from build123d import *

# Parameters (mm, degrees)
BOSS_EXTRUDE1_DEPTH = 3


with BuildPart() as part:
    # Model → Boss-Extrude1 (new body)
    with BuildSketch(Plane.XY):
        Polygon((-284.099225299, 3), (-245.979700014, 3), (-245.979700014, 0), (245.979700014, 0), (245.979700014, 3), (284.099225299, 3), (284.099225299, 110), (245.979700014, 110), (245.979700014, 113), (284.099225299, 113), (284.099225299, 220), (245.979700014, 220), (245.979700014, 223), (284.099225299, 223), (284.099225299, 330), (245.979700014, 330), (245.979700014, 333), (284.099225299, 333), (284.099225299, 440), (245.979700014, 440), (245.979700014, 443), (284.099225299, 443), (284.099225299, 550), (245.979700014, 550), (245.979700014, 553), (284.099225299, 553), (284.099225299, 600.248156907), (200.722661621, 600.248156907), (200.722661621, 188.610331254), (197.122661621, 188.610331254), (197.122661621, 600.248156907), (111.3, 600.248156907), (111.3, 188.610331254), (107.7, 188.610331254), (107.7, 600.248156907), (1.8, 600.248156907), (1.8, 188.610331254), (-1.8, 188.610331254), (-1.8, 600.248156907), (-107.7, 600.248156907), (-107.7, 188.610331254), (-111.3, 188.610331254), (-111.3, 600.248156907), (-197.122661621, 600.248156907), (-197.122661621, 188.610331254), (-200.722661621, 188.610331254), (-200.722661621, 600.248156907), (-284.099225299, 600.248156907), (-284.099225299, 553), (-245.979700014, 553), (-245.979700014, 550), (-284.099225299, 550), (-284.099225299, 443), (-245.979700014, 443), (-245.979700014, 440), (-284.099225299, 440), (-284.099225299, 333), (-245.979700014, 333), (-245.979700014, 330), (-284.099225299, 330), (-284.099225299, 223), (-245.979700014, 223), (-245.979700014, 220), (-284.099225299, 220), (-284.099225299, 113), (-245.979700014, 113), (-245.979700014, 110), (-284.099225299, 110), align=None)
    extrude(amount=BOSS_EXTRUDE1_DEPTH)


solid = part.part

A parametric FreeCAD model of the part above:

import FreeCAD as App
import Part
import Sketcher
from FreeCAD import Vector


def add_polygon(sketch, points):
    """Adds a closed chain of lines whose ends are joined by coincident constraints."""
    first, n = sketch.GeometryCount, len(points)
    for a, b in zip(points, points[1:] + points[:1]):
        sketch.addGeometry(Part.LineSegment(App.Vector(*a, 0), App.Vector(*b, 0)), False)
    for i in range(n):
        sketch.addConstraint(Sketcher.Constraint("Coincident", first + i, 2, first + (i + 1) % n, 1))

doc = App.newDocument("Part")
params = doc.addObject("Spreadsheet::Sheet", "Params")
for row, (alias, value) in enumerate([
    ("sketch1_height", "3 mm"),
    ("sketch1_height2", "107 mm"),
    ("sketch1_width", "3.6 mm"),
    ("sketch1_width2", "105.9 mm"),
    ("pad1_length", "3 mm"),
], start=1):
    params.set(f"A{row}", alias)
    params.set(f"B{row}", "=" + value)
    params.setAlias(f"B{row}", alias)

body = doc.addObject("PartDesign::Body", "Body")

# Sketch on XY plane
sketch1 = body.newObject("Sketcher::SketchObject", "Sketch")
sketch1.AttachmentSupport = (doc.getObject("XY_Plane"), [""])
sketch1.MapMode = "FlatFace"
add_polygon(sketch1, [(-284.1, 3), (-246, 3), (-246, 0), (246, 0), (246, 3), (284.1, 3), (284.1, 110), (246, 110), (246, 113), (284.1, 113), (284.1, 220), (246, 220), (246, 223), (284.1, 223), (284.1, 330), (246, 330), (246, 333), (284.1, 333), (284.1, 440), (246, 440), (246, 443), (284.1, 443), (284.1, 550), (246, 550), (246, 553), (284.1, 553), (284.1, 600.2), (200.7, 600.2), (200.7, 188.6), (197.1, 188.6), (197.1, 600.2), (111.3, 600.2), (111.3, 188.6), (107.7, 188.6), (107.7, 600.2), (1.8, 600.2), (1.8, 188.6), (-1.8, 188.6), (-1.8, 600.2), (-107.7, 600.2), (-107.7, 188.6), (-111.3, 188.6), (-111.3, 600.2), (-197.1, 600.2), (-197.1, 188.6), (-200.7, 188.6), (-200.7, 600.2), (-284.1, 600.2), (-284.1, 553), (-246, 553), (-246, 550), (-284.1, 550), (-284.1, 443), (-246, 443), (-246, 440), (-284.1, 440), (-284.1, 333), (-246, 333), (-246, 330), (-284.1, 330), (-284.1, 223), (-246, 223), (-246, 220), (-284.1, 220), (-284.1, 113), (-246, 113), (-246, 110), (-284.1, 110)])  # lines 0-67
sketch1.addConstraint(Sketcher.Constraint("Horizontal", 0))
sketch1.addConstraint(Sketcher.Constraint("Vertical", 1))
sketch1.addConstraint(Sketcher.Constraint("Horizontal", 2))
sketch1.addConstraint(Sketcher.Constraint("Vertical", 3))
sketch1.addConstraint(Sketcher.Constraint("Horizontal", 4))
sketch1.addConstraint(Sketcher.Constraint("Vertical", 5))
sketch1.addConstraint(Sketcher.Constraint("Horizontal", 6))
sketch1.addConstraint(Sketcher.Constraint("Vertical", 7))
sketch1.addConstraint(Sketcher.Constraint("Horizontal", 8))
sketch1.addConstraint(Sketcher.Constraint("Vertical", 9))
sketch1.addConstraint(Sketcher.Constraint("Horizontal", 10))
sketch1.addConstraint(Sketcher.Constraint("Vertical", 11))
sketch1.addConstraint(Sketcher.Constraint("Horizontal", 12))
sketch1.addConstraint(Sketcher.Constraint("Vertical", 13))
sketch1.addConstraint(Sketcher.Constraint("Horizontal", 14))
sketch1.addConstraint(Sketcher.Constraint("Vertical", 15))
sketch1.addConstraint(Sketcher.Constraint("Horizontal", 16))
sketch1.addConstraint(Sketcher.Constraint("Vertical", 17))
sketch1.addConstraint(Sketcher.Constraint("Horizontal", 18))
sketch1.addConstraint(Sketcher.Constraint("Vertical", 19))
sketch1.addConstraint(Sketcher.Constraint("Horizontal", 20))
sketch1.addConstraint(Sketcher.Constraint("Vertical", 21))
sketch1.addConstraint(Sketcher.Constraint("Horizontal", 22))
sketch1.addConstraint(Sketcher.Constraint("Vertical", 23))
sketch1.addConstraint(Sketcher.Constraint("Horizontal", 24))
sketch1.addConstraint(Sketcher.Constraint("Vertical", 25))
sketch1.addConstraint(Sketcher.Constraint("Horizontal", 26))
sketch1.addConstraint(Sketcher.Constraint("Vertical", 27))
sketch1.addConstraint(Sketcher.Constraint("Horizontal", 28))
sketch1.addConstraint(Sketcher.Constraint("Vertical", 29))
sketch1.addConstraint(Sketcher.Constraint("Horizontal", 30))
sketch1.addConstraint(Sketcher.Constraint("Vertical", 31))
sketch1.addConstraint(Sketcher.Constraint("Horizontal", 32))
sketch1.addConstraint(Sketcher.Constraint("Vertical", 33))
sketch1.addConstraint(Sketcher.Constraint("Horizontal", 34))
sketch1.addConstraint(Sketcher.Constraint("Vertical", 35))
sketch1.addConstraint(Sketcher.Constraint("Horizontal", 36))
sketch1.addConstraint(Sketcher.Constraint("Vertical", 37))
sketch1.addConstraint(Sketcher.Constraint("Horizontal", 38))
sketch1.addConstraint(Sketcher.Constraint("Vertical", 39))
sketch1.addConstraint(Sketcher.Constraint("Horizontal", 40))
sketch1.addConstraint(Sketcher.Constraint("Vertical", 41))
sketch1.addConstraint(Sketcher.Constraint("Horizontal", 42))
sketch1.addConstraint(Sketcher.Constraint("Vertical", 43))
sketch1.addConstraint(Sketcher.Constraint("Horizontal", 44))
sketch1.addConstraint(Sketcher.Constraint("Vertical", 45))
sketch1.addConstraint(Sketcher.Constraint("Horizontal", 46))
sketch1.addConstraint(Sketcher.Constraint("Vertical", 47))
sketch1.addConstraint(Sketcher.Constraint("Horizontal", 48))
sketch1.addConstraint(Sketcher.Constraint("Vertical", 49))
sketch1.addConstraint(Sketcher.Constraint("Horizontal", 50))
sketch1.addConstraint(Sketcher.Constraint("Vertical", 51))
sketch1.addConstraint(Sketcher.Constraint("Horizontal", 52))
sketch1.addConstraint(Sketcher.Constraint("Vertical", 53))
sketch1.addConstraint(Sketcher.Constraint("Horizontal", 54))
sketch1.addConstraint(Sketcher.Constraint("Vertical", 55))
sketch1.addConstraint(Sketcher.Constraint("Horizontal", 56))
sketch1.addConstraint(Sketcher.Constraint("Vertical", 57))
sketch1.addConstraint(Sketcher.Constraint("Horizontal", 58))
sketch1.addConstraint(Sketcher.Constraint("Vertical", 59))
sketch1.addConstraint(Sketcher.Constraint("Horizontal", 60))
sketch1.addConstraint(Sketcher.Constraint("Vertical", 61))
sketch1.addConstraint(Sketcher.Constraint("Horizontal", 62))
sketch1.addConstraint(Sketcher.Constraint("Vertical", 63))
sketch1.addConstraint(Sketcher.Constraint("Horizontal", 64))
sketch1.addConstraint(Sketcher.Constraint("Vertical", 65))
sketch1.addConstraint(Sketcher.Constraint("Horizontal", 66))
sketch1.addConstraint(Sketcher.Constraint("Vertical", 67))
sketch1.addConstraint(Sketcher.Constraint("Symmetric", 1, 2, 2, 2, -1, 1))
sketch1.addConstraint(Sketcher.Constraint("Symmetric", 34, 2, 37, 2, -2))
sketch1.addConstraint(Sketcher.Constraint("Symmetric", 32, 2, 39, 2, -2))
sketch1.addConstraint(Sketcher.Constraint("Symmetric", 30, 2, 41, 2, -2))
sketch1.addConstraint(Sketcher.Constraint("Symmetric", 28, 2, 43, 2, -2))
sketch1.addConstraint(Sketcher.Constraint("Symmetric", 26, 2, 45, 2, -2))
sketch1.addConstraint(Sketcher.Constraint("Symmetric", 24, 2, 47, 2, -2))
sketch1.addConstraint(Sketcher.Constraint("Symmetric", 22, 2, 49, 2, -2))
sketch1.addConstraint(Sketcher.Constraint("Symmetric", 20, 2, 51, 2, -2))
sketch1.addConstraint(Sketcher.Constraint("Symmetric", 18, 2, 53, 2, -2))
sketch1.addConstraint(Sketcher.Constraint("Symmetric", 16, 2, 55, 2, -2))
sketch1.addConstraint(Sketcher.Constraint("Symmetric", 14, 2, 57, 2, -2))
sketch1.addConstraint(Sketcher.Constraint("Symmetric", 12, 2, 59, 2, -2))
sketch1.addConstraint(Sketcher.Constraint("Symmetric", 10, 2, 61, 2, -2))
sketch1.addConstraint(Sketcher.Constraint("Symmetric", 8, 2, 63, 2, -2))
sketch1.addConstraint(Sketcher.Constraint("Symmetric", 6, 2, 65, 2, -2))
sketch1.addConstraint(Sketcher.Constraint("Symmetric", 4, 2, 67, 2, -2))
sketch1.addConstraint(Sketcher.Constraint("Horizontal", 26, 2, 29, 2))
sketch1.addConstraint(Sketcher.Constraint("Horizontal", 28, 2, 31, 2))
sketch1.addConstraint(Sketcher.Constraint("Horizontal", 30, 2, 33, 2))
sketch1.addConstraint(Sketcher.Constraint("Horizontal", 32, 2, 35, 2))
sketch1.addConstraint(Sketcher.Constraint("Vertical", 3, 2, 6, 2))
sketch1.addConstraint(Sketcher.Constraint("Vertical", 5, 2, 8, 2))
sketch1.addConstraint(Sketcher.Constraint("Vertical", 7, 2, 10, 2))
sketch1.addConstraint(Sketcher.Constraint("Vertical", 9, 2, 12, 2))
sketch1.addConstraint(Sketcher.Constraint("Vertical", 11, 2, 14, 2))
sketch1.addConstraint(Sketcher.Constraint("Vertical", 13, 2, 16, 2))
sketch1.addConstraint(Sketcher.Constraint("Vertical", 15, 2, 18, 2))
sketch1.addConstraint(Sketcher.Constraint("Vertical", 17, 2, 20, 2))
sketch1.addConstraint(Sketcher.Constraint("Vertical", 19, 2, 22, 2))
sketch1.addConstraint(Sketcher.Constraint("Vertical", 21, 2, 24, 2))
sketch1.addConstraint(Sketcher.Constraint("Equal", 28, 32))
sketch1.addConstraint(Sketcher.Constraint("Equal", 32, 36))
sketch1.addConstraint(Sketcher.Constraint("Equal", 3, 7))
sketch1.addConstraint(Sketcher.Constraint("Equal", 5, 9))
sketch1.addConstraint(Sketcher.Constraint("Equal", 7, 11))
sketch1.addConstraint(Sketcher.Constraint("Equal", 9, 13))
sketch1.addConstraint(Sketcher.Constraint("Equal", 11, 15))
sketch1.addConstraint(Sketcher.Constraint("Equal", 13, 17))
sketch1.addConstraint(Sketcher.Constraint("Equal", 15, 19))
sketch1.addConstraint(Sketcher.Constraint("Equal", 17, 21))
sketch1.addConstraint(Sketcher.Constraint("Equal", 19, 23))
sketch1.addConstraint(Sketcher.Constraint("DistanceY", 1, 2, 1, 1, 3.0))
sketch1.addConstraint(Sketcher.Constraint("DistanceY", 5, 1, 5, 2, 107.0))
sketch1.addConstraint(Sketcher.Constraint("DistanceX", 28, 2, 28, 1, 3.6))
sketch1.addConstraint(Sketcher.Constraint("DistanceX", 34, 2, 34, 1, 105.9))
sketch1.addConstraint(Sketcher.Constraint("DistanceX", 2, 1, 2, 2, 491.9594))
sketch1.addConstraint(Sketcher.Constraint("DistanceX", 30, 2, 30, 1, 85.822662))
sketch1.addConstraint(Sketcher.Constraint("DistanceX", 0, 1, 0, 2, 38.119525))
sketch1.addConstraint(Sketcher.Constraint("DistanceY", 25, 1, 25, 2, 47.248157))
sketch1.addConstraint(Sketcher.Constraint("DistanceY", 27, 2, 27, 1, 411.637826))
sketch1.setExpression("Constraints[178]", "Params.sketch1_height")
sketch1.setExpression("Constraints[179]", "Params.sketch1_height2")
sketch1.setExpression("Constraints[180]", "Params.sketch1_width")
sketch1.setExpression("Constraints[181]", "Params.sketch1_width2")
pad1 = body.newObject("PartDesign::Pad", "Pad")
pad1.Profile = sketch1
pad1.setExpression("Length", "Params.pad1_length")

doc.recompute()
